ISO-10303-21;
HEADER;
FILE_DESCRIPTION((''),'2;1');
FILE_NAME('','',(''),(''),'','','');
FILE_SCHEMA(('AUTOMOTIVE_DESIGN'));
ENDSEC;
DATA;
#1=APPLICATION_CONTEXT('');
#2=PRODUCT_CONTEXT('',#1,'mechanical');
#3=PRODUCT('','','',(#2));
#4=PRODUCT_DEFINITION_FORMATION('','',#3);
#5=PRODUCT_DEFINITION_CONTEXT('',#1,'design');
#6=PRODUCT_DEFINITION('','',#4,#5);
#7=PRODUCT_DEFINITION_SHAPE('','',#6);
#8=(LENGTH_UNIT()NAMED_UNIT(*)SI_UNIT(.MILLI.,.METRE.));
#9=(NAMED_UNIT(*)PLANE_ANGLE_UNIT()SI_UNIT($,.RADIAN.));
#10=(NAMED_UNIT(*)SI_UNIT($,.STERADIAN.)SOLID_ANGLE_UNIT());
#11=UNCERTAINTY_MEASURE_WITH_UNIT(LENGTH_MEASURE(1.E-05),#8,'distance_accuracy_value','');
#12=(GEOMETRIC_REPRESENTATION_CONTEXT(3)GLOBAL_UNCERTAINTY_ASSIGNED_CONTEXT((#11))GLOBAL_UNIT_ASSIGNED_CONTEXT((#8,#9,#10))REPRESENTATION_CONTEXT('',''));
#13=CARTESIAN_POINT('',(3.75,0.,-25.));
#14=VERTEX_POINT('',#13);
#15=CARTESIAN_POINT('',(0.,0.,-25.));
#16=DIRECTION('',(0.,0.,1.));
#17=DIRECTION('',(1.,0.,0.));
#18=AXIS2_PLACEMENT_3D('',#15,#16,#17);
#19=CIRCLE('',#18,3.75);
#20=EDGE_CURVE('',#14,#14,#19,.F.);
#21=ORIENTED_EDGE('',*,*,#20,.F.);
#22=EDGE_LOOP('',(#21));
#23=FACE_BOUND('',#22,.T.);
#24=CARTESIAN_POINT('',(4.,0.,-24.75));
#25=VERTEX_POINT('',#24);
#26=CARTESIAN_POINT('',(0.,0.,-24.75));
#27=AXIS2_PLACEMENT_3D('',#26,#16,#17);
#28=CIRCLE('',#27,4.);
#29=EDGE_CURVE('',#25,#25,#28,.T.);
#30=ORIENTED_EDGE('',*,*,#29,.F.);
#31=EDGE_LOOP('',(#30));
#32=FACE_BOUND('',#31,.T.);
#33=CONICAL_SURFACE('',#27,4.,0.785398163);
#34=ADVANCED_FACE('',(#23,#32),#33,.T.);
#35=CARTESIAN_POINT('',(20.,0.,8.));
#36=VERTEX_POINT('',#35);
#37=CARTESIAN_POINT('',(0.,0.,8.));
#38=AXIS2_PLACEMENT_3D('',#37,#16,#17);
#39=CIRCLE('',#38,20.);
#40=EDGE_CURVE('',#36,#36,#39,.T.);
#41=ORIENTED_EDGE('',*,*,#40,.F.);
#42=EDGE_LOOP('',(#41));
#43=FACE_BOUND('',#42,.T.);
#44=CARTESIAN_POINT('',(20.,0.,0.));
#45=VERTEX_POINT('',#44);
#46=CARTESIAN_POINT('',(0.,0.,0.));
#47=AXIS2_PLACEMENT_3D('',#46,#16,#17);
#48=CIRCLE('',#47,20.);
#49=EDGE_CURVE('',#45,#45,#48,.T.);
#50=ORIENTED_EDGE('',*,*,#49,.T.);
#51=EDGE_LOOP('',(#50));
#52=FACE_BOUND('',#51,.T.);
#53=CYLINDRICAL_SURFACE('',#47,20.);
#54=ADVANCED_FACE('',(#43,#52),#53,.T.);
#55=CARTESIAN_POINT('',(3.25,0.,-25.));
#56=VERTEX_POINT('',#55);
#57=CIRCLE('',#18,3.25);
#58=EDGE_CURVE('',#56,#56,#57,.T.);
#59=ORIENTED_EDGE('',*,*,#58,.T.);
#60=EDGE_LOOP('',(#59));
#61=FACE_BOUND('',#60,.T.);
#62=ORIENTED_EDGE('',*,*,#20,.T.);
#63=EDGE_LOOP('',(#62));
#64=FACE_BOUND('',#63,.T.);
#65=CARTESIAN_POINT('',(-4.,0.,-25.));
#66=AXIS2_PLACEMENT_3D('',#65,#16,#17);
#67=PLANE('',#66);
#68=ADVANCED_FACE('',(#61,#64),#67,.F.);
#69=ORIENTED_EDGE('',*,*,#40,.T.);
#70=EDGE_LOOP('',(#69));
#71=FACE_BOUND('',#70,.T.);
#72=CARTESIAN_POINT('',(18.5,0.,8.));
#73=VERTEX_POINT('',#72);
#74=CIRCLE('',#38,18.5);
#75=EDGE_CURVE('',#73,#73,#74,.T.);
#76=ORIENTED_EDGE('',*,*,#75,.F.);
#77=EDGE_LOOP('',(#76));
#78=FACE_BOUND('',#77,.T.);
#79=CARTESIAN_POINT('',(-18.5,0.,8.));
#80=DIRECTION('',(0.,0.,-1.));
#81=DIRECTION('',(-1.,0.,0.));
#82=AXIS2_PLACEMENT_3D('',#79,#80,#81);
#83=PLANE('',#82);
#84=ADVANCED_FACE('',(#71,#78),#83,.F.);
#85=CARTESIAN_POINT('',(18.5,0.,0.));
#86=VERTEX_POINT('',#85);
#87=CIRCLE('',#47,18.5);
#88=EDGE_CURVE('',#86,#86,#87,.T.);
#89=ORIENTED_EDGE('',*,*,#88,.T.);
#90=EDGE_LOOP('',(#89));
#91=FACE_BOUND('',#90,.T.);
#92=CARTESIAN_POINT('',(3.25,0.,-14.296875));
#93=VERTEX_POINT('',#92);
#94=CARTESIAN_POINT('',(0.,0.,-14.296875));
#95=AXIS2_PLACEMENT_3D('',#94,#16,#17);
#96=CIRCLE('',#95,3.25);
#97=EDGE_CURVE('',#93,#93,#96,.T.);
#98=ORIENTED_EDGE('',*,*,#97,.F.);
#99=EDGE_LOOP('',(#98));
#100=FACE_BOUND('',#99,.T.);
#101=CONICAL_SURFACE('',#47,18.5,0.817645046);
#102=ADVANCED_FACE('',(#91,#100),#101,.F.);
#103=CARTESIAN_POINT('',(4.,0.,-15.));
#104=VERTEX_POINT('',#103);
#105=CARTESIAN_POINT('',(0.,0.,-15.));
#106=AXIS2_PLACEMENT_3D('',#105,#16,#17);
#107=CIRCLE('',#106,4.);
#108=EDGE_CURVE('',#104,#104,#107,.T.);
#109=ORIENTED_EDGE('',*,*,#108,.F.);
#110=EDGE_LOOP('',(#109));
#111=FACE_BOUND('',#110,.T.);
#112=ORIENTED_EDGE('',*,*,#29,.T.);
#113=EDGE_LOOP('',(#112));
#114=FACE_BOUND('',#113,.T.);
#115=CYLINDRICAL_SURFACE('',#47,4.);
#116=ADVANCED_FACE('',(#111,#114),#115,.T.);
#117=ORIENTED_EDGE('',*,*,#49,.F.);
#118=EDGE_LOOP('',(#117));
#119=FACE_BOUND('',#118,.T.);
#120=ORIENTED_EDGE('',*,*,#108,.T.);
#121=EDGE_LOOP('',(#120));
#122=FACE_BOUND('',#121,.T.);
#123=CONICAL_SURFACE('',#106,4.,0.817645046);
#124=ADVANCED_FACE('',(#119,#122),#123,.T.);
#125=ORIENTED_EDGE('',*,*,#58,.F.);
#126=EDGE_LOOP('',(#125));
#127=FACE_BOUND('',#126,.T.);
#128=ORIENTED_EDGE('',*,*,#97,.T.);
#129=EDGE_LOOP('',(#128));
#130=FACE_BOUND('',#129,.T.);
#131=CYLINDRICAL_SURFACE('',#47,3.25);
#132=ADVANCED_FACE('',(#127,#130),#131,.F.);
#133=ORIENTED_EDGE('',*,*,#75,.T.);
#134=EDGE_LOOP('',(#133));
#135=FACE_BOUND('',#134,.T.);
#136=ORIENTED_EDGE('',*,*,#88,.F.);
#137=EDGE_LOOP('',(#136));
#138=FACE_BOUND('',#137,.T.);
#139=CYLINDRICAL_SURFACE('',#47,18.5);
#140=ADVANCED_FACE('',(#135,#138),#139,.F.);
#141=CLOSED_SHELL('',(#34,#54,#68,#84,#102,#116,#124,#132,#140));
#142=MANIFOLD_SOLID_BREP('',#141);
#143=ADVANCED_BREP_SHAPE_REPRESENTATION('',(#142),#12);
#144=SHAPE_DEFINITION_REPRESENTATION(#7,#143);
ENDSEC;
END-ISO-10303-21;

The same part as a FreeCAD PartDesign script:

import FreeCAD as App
import Part
import Sketcher

V = App.Vector
Q = App.Units.Quantity


def edges_at(feature, points):
    """Names of the edges that pass closest to the given points."""
    edges = feature.Shape.Edges
    near = lambda p: min(range(len(edges)), key=lambda i: edges[i].distToShape(Part.Vertex(*p))[0])
    return sorted({f"Edge{near(p) + 1}" for p in points})

doc = App.newDocument("Part")
body = doc.addObject("PartDesign::Body", "Body")

sketch1 = body.newObject("Sketcher::SketchObject", "Sketch")
sketch1.AttachmentSupport = (doc.getObject("XZ_Plane"), [""])
sketch1.MapMode = "FlatFace"
sketch1.addGeometry([
    Part.LineSegment(V(-4, -25, 0), V(-4, -15, 0)),
    Part.LineSegment(V(-4, -15, 0), V(-20, 0, 0)),
    Part.LineSegment(V(-20, 0, 0), V(-20, 8, 0)),
    Part.LineSegment(V(-20, 8, 0), V(-18.5, 8, 0)),
    Part.LineSegment(V(-18.5, 8, 0), V(-18.5, 0, 0)),
    Part.LineSegment(V(-18.5, 0, 0), V(-3.2, -14.3, 0)),
    Part.LineSegment(V(-3.2, -14.3, 0), V(-3.2, -25, 0)),
    Part.LineSegment(V(-3.2, -25, 0), V(-4, -25, 0)),
], False)
sketch1.addConstraint([
    Sketcher.Constraint("Coincident", 0, 2, 1, 1),
    Sketcher.Constraint("Coincident", 1, 2, 2, 1),
    Sketcher.Constraint("Coincident", 2, 2, 3, 1),
    Sketcher.Constraint("Coincident", 3, 2, 4, 1),
    Sketcher.Constraint("Coincident", 4, 2, 5, 1),
    Sketcher.Constraint("Coincident", 5, 2, 6, 1),
    Sketcher.Constraint("Coincident", 6, 2, 7, 1),
    Sketcher.Constraint("Coincident", 7, 2, 0, 1),
    Sketcher.Constraint("Vertical", 0),
    Sketcher.Constraint("Vertical", 2),
    Sketcher.Constraint("Horizontal", 3),
    Sketcher.Constraint("Vertical", 4),
    Sketcher.Constraint("Vertical", 6),
    Sketcher.Constraint("Horizontal", 7),
    Sketcher.Constraint("PointOnObject", 1, 2, -1),
    Sketcher.Constraint("PointOnObject", 4, 2, -1),
    Sketcher.Constraint("Parallel", 1, 5),
    Sketcher.Constraint("DistanceY", 0, 1, 0, 2, Q("10 mm")),
    Sketcher.Constraint("DistanceY", 2, 1, 2, 2, Q("8 mm")),
    Sketcher.Constraint("DistanceX", 3, 1, 3, 2, Q("1.5 mm")),
    Sketcher.Constraint("DistanceX", 0, 2, -1, 1, Q("4 mm")),
    Sketcher.Constraint("DistanceY", 0, 2, -1, 1, Q("15 mm")),
    Sketcher.Constraint("DistanceX", 1, 2, -1, 1, Q("20 mm")),
    Sketcher.Constraint("DistanceX", 7, 2, 7, 1, Q("0.75 mm")),
])
revolution = body.newObject("PartDesign::Revolution", "Revolution")
revolution.Profile = sketch1
revolution.ReferenceAxis = (sketch1, ["V_Axis"])
revolution.Angle = 360
doc.recompute()

chamfer = body.newObject("PartDesign::Chamfer", "Chamfer")
chamfer.Base = (revolution, edges_at(revolution, [(4, 0, -25)]))
chamfer.Size = 0.25

doc.recompute()
